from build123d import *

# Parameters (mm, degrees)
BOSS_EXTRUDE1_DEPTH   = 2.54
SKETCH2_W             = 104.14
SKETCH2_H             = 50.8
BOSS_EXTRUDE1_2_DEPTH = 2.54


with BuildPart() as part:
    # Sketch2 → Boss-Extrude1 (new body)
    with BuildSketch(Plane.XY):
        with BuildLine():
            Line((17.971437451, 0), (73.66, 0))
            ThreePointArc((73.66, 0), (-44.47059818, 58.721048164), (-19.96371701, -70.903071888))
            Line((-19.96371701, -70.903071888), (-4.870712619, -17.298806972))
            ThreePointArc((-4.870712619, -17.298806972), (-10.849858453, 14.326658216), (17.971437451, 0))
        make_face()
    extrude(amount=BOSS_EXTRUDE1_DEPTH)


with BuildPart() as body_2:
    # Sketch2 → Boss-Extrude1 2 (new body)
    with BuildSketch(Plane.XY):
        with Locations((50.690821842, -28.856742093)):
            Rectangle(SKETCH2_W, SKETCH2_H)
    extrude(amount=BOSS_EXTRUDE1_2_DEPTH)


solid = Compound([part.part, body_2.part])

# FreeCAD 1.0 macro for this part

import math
import FreeCAD as App
import Part
import Sketcher
from FreeCAD import Vector
Q = App.Units.Quantity

doc = App.newDocument("Part")
body = doc.addObject("PartDesign::Body", "Body")

sketch1 = doc.addObject("Sketcher::SketchObject", "Sketch")
body.addObject(sketch1)
sketch1.AttachmentSupport = (doc.XY_Plane, [""])
sketch1.MapMode = "FlatFace"
sketch1.addGeometry([
    Part.LineSegment(Vector(18, 0, 0), Vector(74, 0, 0)),
    Part.ArcOfCircle(Part.Circle(Vector(0, 0, 0), Vector(0, 0, 1), 74), math.radians(0), math.radians(254)),
    Part.LineSegment(Vector(-20, -71, 0), Vector(-5, -17, 0)),
    Part.ArcOfCircle(Part.Circle(Vector(0, 0, 0), Vector(0, 0, 1), 18), math.radians(0), math.radians(254)),
], False)
sketch1.addConstraint([
    Sketcher.Constraint("Coincident", 0, 2, 1, 1),
    Sketcher.Constraint("Coincident", 1, 2, 2, 1),
    Sketcher.Constraint("Coincident", 2, 2, 3, 2),
    Sketcher.Constraint("Coincident", 3, 1, 0, 1),
    Sketcher.Constraint("Horizontal", 0),
    Sketcher.Constraint("Coincident", 1, 3, -1, 1),
    Sketcher.Constraint("Coincident", 3, 3, -1, 1),
    Sketcher.Constraint("PointOnObject", 0, 2, -1),
    Sketcher.Constraint("Radius", 1, Q("2.9 in")),
    Sketcher.Constraint("Radius", 3, 17.971437),
    Sketcher.Constraint("DistanceY", 1, 2, -1, 1, 70.903072),
    Sketcher.Constraint("DistanceX", 2, 2, 3, 1, 22.84215),
])
pad1 = doc.addObject("PartDesign::Pad", "Pad")
body.addObject(pad1)
pad1.Profile = sketch1
pad1.Length = Q("0.1 in")
body2 = doc.addObject("PartDesign::Body", "Body001")

sketch2 = doc.addObject("Sketcher::SketchObject", "Sketch001")
body2.addObject(sketch2)
sketch2.AttachmentSupport = (doc.getObject("XY_Plane001"), [""])
sketch2.MapMode = "FlatFace"
sketch2.addGeometry([
    Part.LineSegment(Vector(-1, -3, 0), Vector(-1, -54, 0)),
    Part.LineSegment(Vector(-1, -54, 0), Vector(103, -54, 0)),
    Part.LineSegment(Vector(103, -54, 0), Vector(103, -3, 0)),
    Part.LineSegment(Vector(103, -3, 0), Vector(-1, -3, 0)),
], False)
sketch2.addConstraint([
    Sketcher.Constraint("Coincident", 0, 2, 1, 1),
    Sketcher.Constraint("Coincident", 1, 2, 2, 1),
    Sketcher.Constraint("Coincident", 2, 2, 3, 1),
    Sketcher.Constraint("Coincident", 3, 2, 0, 1),
    Sketcher.Constraint("Vertical", 0),
    Sketcher.Constraint("Horizontal", 1),
    Sketcher.Constraint("Vertical", 2),
    Sketcher.Constraint("Horizontal", 3),
    Sketcher.Constraint("DistanceY", 0, 2, 0, 1, Q("2 in")),
    Sketcher.Constraint("DistanceX", 1, 1, 1, 2, Q("4.1 in")),
    Sketcher.Constraint("DistanceX", 0, 2, -1, 1, 1.379178),
    Sketcher.Constraint("DistanceY", 0, 2, -1, 1, 54.256742),
])
pad2 = doc.addObject("PartDesign::Pad", "Pad001")
body2.addObject(pad2)
pad2.Profile = sketch2
pad2.Length = Q("0.1 in")

doc.recompute()
